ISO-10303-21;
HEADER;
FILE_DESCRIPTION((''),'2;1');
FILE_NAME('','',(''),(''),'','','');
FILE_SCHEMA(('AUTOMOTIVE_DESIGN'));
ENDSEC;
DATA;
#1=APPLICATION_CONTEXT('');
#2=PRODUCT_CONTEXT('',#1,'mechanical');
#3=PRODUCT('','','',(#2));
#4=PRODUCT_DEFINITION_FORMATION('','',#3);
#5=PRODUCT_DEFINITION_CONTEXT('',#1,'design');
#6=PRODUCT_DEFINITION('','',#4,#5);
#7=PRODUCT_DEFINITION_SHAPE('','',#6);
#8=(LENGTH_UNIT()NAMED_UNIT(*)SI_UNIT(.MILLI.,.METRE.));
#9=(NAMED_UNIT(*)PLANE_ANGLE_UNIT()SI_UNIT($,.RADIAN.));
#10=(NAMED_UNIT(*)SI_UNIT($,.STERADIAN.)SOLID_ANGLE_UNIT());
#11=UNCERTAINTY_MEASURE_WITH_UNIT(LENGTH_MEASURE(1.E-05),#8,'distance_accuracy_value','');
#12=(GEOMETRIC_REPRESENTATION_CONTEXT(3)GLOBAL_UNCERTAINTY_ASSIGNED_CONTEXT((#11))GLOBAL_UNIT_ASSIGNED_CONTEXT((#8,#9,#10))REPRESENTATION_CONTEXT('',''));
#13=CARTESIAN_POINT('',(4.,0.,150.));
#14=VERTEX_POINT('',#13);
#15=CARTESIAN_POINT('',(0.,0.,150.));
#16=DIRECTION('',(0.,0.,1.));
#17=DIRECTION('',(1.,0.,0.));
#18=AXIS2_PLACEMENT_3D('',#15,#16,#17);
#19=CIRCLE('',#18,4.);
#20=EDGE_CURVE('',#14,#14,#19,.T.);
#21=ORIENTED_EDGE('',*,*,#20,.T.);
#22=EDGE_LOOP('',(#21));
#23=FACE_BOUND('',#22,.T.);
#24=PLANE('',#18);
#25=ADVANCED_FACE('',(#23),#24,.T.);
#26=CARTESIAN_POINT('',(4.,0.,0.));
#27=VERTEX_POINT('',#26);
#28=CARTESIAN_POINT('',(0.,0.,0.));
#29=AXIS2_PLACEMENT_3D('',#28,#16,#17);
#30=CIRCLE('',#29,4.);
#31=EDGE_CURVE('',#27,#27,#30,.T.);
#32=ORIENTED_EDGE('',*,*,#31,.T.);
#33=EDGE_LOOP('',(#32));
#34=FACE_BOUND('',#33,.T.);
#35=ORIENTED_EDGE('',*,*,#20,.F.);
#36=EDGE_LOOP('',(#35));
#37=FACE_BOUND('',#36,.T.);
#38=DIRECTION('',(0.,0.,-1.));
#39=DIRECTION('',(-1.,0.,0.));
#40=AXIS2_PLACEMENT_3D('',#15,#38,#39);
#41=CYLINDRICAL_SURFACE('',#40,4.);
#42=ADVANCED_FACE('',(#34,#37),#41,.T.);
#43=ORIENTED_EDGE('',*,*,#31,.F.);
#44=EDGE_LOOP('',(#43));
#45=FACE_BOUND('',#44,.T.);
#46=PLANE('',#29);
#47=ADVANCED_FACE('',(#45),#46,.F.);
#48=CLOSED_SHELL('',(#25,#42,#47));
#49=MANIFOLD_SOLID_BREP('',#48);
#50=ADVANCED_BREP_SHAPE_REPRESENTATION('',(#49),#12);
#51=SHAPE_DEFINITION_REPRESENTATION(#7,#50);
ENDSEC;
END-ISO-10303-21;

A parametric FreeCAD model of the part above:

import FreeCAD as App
import Part
import Sketcher
from FreeCAD import Vector
Q = App.Units.Quantity

doc = App.newDocument("Part")
body = doc.addObject("PartDesign::Body", "Body")

# Sketch on XY plane
sketch1 = body.newObject("Sketcher::SketchObject", "Sketch")
sketch1.AttachmentSupport = (doc.getObject("XY_Plane"), [""])
sketch1.MapMode = "FlatFace"
sketch1.addGeometry(Part.Circle(Vector(0, 0, 0), Vector(0, 0, 1), 4), False)
sketch1.addConstraint([
    Sketcher.Constraint("Coincident", 0, 3, -1, 1),
    Sketcher.Constraint("Diameter", 0, Q("8 mm")),
])
pad1 = body.newObject("PartDesign::Pad", "Pad")
pad1.Profile = sketch1
pad1.Length = 150

doc.recompute()
